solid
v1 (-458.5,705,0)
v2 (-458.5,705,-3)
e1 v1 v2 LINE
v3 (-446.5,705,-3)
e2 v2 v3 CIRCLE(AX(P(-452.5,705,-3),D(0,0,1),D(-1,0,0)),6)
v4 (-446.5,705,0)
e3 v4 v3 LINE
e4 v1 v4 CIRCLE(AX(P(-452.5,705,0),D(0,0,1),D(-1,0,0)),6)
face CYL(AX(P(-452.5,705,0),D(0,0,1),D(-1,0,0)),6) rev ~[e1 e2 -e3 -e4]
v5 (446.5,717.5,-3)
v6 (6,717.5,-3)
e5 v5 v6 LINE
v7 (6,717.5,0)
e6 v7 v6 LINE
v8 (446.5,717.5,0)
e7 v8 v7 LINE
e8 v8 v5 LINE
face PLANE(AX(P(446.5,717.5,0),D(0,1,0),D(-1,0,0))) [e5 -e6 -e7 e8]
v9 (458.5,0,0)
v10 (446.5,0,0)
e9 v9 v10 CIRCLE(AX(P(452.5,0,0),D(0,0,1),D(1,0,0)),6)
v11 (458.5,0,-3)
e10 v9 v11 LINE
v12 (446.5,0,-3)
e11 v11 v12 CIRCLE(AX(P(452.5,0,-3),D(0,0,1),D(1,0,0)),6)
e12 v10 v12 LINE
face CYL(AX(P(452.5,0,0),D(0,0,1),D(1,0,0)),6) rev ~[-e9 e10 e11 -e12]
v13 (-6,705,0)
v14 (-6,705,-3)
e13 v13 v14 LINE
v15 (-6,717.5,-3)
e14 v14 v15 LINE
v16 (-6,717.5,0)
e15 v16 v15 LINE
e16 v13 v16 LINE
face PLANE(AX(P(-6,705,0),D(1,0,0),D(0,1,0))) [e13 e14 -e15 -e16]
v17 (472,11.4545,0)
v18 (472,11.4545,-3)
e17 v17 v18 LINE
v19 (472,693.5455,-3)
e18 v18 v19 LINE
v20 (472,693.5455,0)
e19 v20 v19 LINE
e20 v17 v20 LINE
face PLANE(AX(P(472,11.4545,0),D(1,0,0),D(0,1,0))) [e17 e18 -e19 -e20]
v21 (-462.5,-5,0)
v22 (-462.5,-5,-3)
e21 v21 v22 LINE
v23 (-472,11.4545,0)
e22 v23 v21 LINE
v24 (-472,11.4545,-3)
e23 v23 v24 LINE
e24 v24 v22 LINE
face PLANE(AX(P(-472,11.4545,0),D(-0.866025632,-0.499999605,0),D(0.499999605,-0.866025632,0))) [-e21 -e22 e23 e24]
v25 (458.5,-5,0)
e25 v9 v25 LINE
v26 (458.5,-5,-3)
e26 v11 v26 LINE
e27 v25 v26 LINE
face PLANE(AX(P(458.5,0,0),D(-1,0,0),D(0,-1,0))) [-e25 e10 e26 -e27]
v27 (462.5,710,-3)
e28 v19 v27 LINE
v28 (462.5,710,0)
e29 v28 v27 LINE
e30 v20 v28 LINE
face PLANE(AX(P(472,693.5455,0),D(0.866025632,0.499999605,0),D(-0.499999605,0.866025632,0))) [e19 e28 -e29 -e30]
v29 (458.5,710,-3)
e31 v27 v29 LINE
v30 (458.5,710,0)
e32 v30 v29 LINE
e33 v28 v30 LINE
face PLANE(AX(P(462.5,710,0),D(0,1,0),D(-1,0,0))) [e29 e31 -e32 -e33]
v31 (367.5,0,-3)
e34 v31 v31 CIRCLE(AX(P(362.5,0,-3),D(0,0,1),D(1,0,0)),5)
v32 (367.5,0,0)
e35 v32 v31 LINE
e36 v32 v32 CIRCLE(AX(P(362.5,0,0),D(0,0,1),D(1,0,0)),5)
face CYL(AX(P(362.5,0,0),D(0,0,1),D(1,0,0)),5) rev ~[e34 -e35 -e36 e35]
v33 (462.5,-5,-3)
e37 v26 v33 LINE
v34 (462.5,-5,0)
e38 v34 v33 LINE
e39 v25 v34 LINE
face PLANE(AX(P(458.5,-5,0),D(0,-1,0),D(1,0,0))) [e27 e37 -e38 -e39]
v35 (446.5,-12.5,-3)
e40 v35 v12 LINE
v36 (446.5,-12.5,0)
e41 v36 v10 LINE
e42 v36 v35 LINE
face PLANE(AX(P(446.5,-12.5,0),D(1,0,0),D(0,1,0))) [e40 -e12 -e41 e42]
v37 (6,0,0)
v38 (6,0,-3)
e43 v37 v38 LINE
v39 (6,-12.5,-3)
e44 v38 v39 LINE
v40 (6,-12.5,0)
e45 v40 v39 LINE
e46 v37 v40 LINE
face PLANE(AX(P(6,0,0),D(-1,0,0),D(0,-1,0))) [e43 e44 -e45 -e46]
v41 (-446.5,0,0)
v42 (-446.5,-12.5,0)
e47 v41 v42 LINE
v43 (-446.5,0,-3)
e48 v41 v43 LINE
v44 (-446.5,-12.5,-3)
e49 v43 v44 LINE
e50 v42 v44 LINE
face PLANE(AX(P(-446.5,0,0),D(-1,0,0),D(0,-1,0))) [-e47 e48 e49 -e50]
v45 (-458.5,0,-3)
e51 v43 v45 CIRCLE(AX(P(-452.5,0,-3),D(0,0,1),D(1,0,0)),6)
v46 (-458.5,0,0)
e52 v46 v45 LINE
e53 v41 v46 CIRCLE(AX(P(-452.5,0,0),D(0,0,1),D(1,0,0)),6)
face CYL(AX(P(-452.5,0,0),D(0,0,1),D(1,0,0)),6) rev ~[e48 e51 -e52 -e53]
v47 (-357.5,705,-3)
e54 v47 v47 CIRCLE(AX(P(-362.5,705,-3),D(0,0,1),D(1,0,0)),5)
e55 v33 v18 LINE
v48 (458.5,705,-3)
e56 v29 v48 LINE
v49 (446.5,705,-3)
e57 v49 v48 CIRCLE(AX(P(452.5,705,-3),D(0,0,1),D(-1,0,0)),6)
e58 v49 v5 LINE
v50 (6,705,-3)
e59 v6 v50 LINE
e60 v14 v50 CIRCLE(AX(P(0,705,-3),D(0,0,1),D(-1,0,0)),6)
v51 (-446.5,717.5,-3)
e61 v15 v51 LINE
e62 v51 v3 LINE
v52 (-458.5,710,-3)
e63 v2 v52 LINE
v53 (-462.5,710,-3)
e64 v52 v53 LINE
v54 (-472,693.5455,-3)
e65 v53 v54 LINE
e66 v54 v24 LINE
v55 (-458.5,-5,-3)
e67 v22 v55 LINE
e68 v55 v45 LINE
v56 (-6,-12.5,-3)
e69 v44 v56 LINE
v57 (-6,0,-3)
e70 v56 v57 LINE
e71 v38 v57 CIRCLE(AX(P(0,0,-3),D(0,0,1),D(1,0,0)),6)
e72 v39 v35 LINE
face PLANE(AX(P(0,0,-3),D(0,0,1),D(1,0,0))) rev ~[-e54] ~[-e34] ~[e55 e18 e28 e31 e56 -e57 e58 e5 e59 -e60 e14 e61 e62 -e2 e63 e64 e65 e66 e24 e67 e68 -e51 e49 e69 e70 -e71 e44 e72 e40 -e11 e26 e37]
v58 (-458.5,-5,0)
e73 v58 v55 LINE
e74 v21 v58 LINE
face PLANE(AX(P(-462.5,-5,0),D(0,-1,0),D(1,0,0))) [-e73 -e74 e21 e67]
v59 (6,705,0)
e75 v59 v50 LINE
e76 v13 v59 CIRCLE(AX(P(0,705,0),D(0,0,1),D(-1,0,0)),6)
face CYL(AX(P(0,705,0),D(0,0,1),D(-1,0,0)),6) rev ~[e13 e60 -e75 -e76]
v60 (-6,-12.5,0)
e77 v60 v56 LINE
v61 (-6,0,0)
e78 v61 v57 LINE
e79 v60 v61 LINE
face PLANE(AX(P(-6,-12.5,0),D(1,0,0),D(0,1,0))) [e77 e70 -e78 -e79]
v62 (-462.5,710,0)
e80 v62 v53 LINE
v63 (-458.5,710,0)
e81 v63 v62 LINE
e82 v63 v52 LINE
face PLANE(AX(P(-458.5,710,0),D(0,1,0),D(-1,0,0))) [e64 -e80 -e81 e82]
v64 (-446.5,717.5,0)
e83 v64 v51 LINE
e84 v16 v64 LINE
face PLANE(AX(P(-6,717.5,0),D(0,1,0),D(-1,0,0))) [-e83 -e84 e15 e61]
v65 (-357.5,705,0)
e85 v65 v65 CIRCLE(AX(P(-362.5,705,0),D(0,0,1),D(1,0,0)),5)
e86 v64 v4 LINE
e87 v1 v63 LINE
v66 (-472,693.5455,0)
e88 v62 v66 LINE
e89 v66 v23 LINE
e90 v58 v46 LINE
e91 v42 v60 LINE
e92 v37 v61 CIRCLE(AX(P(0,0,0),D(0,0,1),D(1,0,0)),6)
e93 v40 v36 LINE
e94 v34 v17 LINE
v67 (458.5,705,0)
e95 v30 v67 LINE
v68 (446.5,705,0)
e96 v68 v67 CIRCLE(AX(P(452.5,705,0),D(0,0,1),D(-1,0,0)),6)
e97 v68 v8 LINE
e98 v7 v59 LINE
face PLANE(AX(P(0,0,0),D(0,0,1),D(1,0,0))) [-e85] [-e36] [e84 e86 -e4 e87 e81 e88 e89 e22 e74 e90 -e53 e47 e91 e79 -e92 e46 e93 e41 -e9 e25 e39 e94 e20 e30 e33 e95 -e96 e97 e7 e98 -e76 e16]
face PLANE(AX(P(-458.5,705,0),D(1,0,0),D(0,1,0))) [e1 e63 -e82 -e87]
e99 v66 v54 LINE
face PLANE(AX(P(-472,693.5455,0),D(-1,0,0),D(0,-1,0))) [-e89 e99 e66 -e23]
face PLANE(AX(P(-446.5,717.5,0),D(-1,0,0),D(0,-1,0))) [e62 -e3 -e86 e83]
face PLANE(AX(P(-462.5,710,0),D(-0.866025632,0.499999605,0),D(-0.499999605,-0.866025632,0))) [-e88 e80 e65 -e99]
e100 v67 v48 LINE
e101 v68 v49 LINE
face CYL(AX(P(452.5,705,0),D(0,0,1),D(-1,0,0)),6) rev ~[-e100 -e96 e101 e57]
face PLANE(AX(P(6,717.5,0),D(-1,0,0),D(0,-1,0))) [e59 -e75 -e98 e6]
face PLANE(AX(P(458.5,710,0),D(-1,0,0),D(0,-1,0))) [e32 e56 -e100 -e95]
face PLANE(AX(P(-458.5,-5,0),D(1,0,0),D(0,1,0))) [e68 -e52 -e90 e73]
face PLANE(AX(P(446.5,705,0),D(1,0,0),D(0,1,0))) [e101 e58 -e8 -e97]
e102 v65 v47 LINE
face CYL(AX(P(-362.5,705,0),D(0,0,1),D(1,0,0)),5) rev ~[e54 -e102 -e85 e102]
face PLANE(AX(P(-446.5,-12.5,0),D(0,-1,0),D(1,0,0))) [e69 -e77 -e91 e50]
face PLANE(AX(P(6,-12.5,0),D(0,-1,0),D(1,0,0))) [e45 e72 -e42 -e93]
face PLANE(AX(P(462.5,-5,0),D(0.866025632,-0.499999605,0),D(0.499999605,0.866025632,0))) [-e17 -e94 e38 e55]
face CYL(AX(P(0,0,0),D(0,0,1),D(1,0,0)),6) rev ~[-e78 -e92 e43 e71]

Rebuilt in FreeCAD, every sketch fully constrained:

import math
import FreeCAD as App
import Part
import Sketcher
Q = App.Units.Quantity

doc = App.newDocument("Part")
body = doc.addObject("PartDesign::Body", "Body")

sketch1 = doc.addObject("Sketcher::SketchObject", "Sketch")
body.addObject(sketch1)
sketch1.AttachmentSupport = (doc.XY_Plane, [""])
sketch1.MapMode = "FlatFace"
sketch1.addGeometry([
    Part.LineSegment(App.Vector(-472, 693.5455, 0), App.Vector(-472, 11.4545, 0)),
    Part.LineSegment(App.Vector(-472, 11.4545, 0), App.Vector(-462.5, -5, 0)),
    Part.LineSegment(App.Vector(-462.5, -5, 0), App.Vector(-458.5, -5, 0)),
    Part.LineSegment(App.Vector(-458.5, -5, 0), App.Vector(-458.5, 0, 0)),
    Part.ArcOfCircle(Part.Circle(App.Vector(-452.5, 0, 0), App.Vector(0, 0, 1), 6), math.radians(0), math.radians(180)),
    Part.LineSegment(App.Vector(-446.5, 0, 0), App.Vector(-446.5, -12.5, 0)),
    Part.LineSegment(App.Vector(-446.5, -12.5, 0), App.Vector(-6, -12.5, 0)),
    Part.LineSegment(App.Vector(-6, -12.5, 0), App.Vector(-6, 0, 0)),
    Part.ArcOfCircle(Part.Circle(App.Vector(0, 0, 0), App.Vector(0, 0, 1), 6), math.radians(0), math.radians(180)),
    Part.LineSegment(App.Vector(6, 0, 0), App.Vector(6, -12.5, 0)),
    Part.LineSegment(App.Vector(6, -12.5, 0), App.Vector(446.5, -12.5, 0)),
    Part.LineSegment(App.Vector(446.5, -12.5, 0), App.Vector(446.5, 0, 0)),
    Part.ArcOfCircle(Part.Circle(App.Vector(452.5, 0, 0), App.Vector(0, 0, 1), 6), math.radians(0), math.radians(180)),
    Part.LineSegment(App.Vector(458.5, 0, 0), App.Vector(458.5, -5, 0)),
    Part.LineSegment(App.Vector(458.5, -5, 0), App.Vector(462.5, -5, 0)),
    Part.LineSegment(App.Vector(462.5, -5, 0), App.Vector(472, 11.4545, 0)),
    Part.LineSegment(App.Vector(472, 11.4545, 0), App.Vector(472, 693.5455, 0)),
    Part.LineSegment(App.Vector(472, 693.5455, 0), App.Vector(462.5, 710, 0)),
    Part.LineSegment(App.Vector(462.5, 710, 0), App.Vector(458.5, 710, 0)),
    Part.LineSegment(App.Vector(458.5, 710, 0), App.Vector(458.5, 705, 0)),
    Part.ArcOfCircle(Part.Circle(App.Vector(452.5, 705, 0), App.Vector(0, 0, 1), 6), math.radians(180), math.radians(360)),
    Part.LineSegment(App.Vector(446.5, 705, 0), App.Vector(446.5, 717.5, 0)),
    Part.LineSegment(App.Vector(446.5, 717.5, 0), App.Vector(6, 717.5, 0)),
    Part.LineSegment(App.Vector(6, 717.5, 0), App.Vector(6, 705, 0)),
    Part.ArcOfCircle(Part.Circle(App.Vector(0, 705, 0), App.Vector(0, 0, 1), 6), math.radians(180), math.radians(360)),
    Part.LineSegment(App.Vector(-6, 705, 0), App.Vector(-6, 717.5, 0)),
    Part.LineSegment(App.Vector(-6, 717.5, 0), App.Vector(-446.5, 717.5, 0)),
    Part.LineSegment(App.Vector(-446.5, 717.5, 0), App.Vector(-446.5, 705, 0)),
    Part.ArcOfCircle(Part.Circle(App.Vector(-452.5, 705, 0), App.Vector(0, 0, 1), 6), math.radians(180), math.radians(360)),
    Part.LineSegment(App.Vector(-458.5, 705, 0), App.Vector(-458.5, 710, 0)),
    Part.LineSegment(App.Vector(-458.5, 710, 0), App.Vector(-462.5, 710, 0)),
    Part.LineSegment(App.Vector(-462.5, 710, 0), App.Vector(-472, 693.5455, 0)),
    Part.Circle(App.Vector(362.5, 0, 0), App.Vector(0, 0, 1), 5),
    Part.Circle(App.Vector(-362.5, 705, 0), App.Vector(0, 0, 1), 5),
], False)
sketch1.addConstraint([
    Sketcher.Constraint("Coincident", 0, 2, 1, 1),
    Sketcher.Constraint("Coincident", 1, 2, 2, 1),
    Sketcher.Constraint("Coincident", 2, 2, 3, 1),
    Sketcher.Constraint("Tangent", 3, 2, 4, 2),
    Sketcher.Constraint("Tangent", 4, 1, 5, 1),
    Sketcher.Constraint("Coincident", 5, 2, 6, 1),
    Sketcher.Constraint("Coincident", 6, 2, 7, 1),
    Sketcher.Constraint("Tangent", 7, 2, 8, 2),
    Sketcher.Constraint("Tangent", 8, 1, 9, 1),
    Sketcher.Constraint("Coincident", 9, 2, 10, 1),
    Sketcher.Constraint("Coincident", 10, 2, 11, 1),
    Sketcher.Constraint("Tangent", 11, 2, 12, 2),
    Sketcher.Constraint("Tangent", 12, 1, 13, 1),
    Sketcher.Constraint("Coincident", 13, 2, 14, 1),
    Sketcher.Constraint("Coincident", 14, 2, 15, 1),
    Sketcher.Constraint("Coincident", 15, 2, 16, 1),
    Sketcher.Constraint("Coincident", 16, 2, 17, 1),
    Sketcher.Constraint("Coincident", 17, 2, 18, 1),
    Sketcher.Constraint("Coincident", 18, 2, 19, 1),
    Sketcher.Constraint("Tangent", 19, 2, 20, 2),
    Sketcher.Constraint("Tangent", 20, 1, 21, 1),
    Sketcher.Constraint("Coincident", 21, 2, 22, 1),
    Sketcher.Constraint("Coincident", 22, 2, 23, 1),
    Sketcher.Constraint("Tangent", 23, 2, 24, 2),
    Sketcher.Constraint("Tangent", 24, 1, 25, 1),
    Sketcher.Constraint("Coincident", 25, 2, 26, 1),
    Sketcher.Constraint("Coincident", 26, 2, 27, 1),
    Sketcher.Constraint("Tangent", 27, 2, 28, 2),
    Sketcher.Constraint("Tangent", 28, 1, 29, 1),
    Sketcher.Constraint("Coincident", 29, 2, 30, 1),
    Sketcher.Constraint("Coincident", 30, 2, 31, 1),
    Sketcher.Constraint("Coincident", 31, 2, 0, 1),
    Sketcher.Constraint("Vertical", 0),
    Sketcher.Constraint("Horizontal", 2),
    Sketcher.Constraint("Vertical", 3),
    Sketcher.Constraint("Vertical", 5),
    Sketcher.Constraint("Horizontal", 6),
    Sketcher.Constraint("Vertical", 7),
    Sketcher.Constraint("Vertical", 9),
    Sketcher.Constraint("Horizontal", 10),
    Sketcher.Constraint("Vertical", 11),
    Sketcher.Constraint("Vertical", 13),
    Sketcher.Constraint("Horizontal", 14),
    Sketcher.Constraint("Vertical", 16),
    Sketcher.Constraint("Horizontal", 18),
    Sketcher.Constraint("Vertical", 19),
    Sketcher.Constraint("Vertical", 21),
    Sketcher.Constraint("Horizontal", 22),
    Sketcher.Constraint("Vertical", 23),
    Sketcher.Constraint("Vertical", 25),
    Sketcher.Constraint("Horizontal", 26),
    Sketcher.Constraint("Vertical", 27),
    Sketcher.Constraint("Vertical", 29),
    Sketcher.Constraint("Horizontal", 30),
    Sketcher.Constraint("Coincident", 8, 3, -1, 1),
    Sketcher.Constraint("Equal", 4, 8),
    Sketcher.Constraint("Equal", 8, 12),
    Sketcher.Constraint("Equal", 12, 20),
    Sketcher.Constraint("Equal", 20, 24),
    Sketcher.Constraint("Equal", 24, 28),
    Sketcher.Constraint("Equal", 32, 33),
    Sketcher.Constraint("Symmetric", 4, 3, 12, 3, -1, 1),
    Sketcher.Constraint("Symmetric", 20, 3, 28, 3, -2),
    Sketcher.Constraint("Symmetric", 1, 2, 14, 2, -2),
    Sketcher.Constraint("Symmetric", 0, 2, 15, 2, -2),
    Sketcher.Constraint("Symmetric", 22, 2, 25, 2, -2),
    Sketcher.Constraint("Symmetric", 17, 2, 30, 2, -2),
    Sketcher.Constraint("PointOnObject", 4, 3, -1),
    Sketcher.Constraint("PointOnObject", 32, 3, -1),
    Sketcher.Constraint("Parallel", 1, 17),
    Sketcher.Constraint("Parallel", 15, 31),
    Sketcher.Constraint("Horizontal", 20, 3, 24, 3),
    Sketcher.Constraint("Horizontal", 28, 3, 33, 3),
    Sketcher.Constraint("Horizontal", 6, 2, 9, 2),
    Sketcher.Constraint("Vertical", 12, 3, 20, 3),
    Sketcher.Constraint("Vertical", 14, 2, 17, 2),
    Sketcher.Constraint("Equal", 13, 19),
    Sketcher.Constraint("Equal", 11, 21),
    Sketcher.Constraint("Diameter", 32, Q("10 mm")),
    Sketcher.Constraint("Radius", 4, Q("6 mm")),
    Sketcher.Constraint("DistanceX", 2, 1, 2, 2, Q("4 mm")),
    Sketcher.Constraint("DistanceY", 3, 1, 3, 2, Q("5 mm")),
    Sketcher.Constraint("Angle", 1, Q("-60 deg")),
    Sketcher.Constraint("Distance", 1, Q("19 mm")),
    Sketcher.Constraint("DistanceX", 6, 1, 6, 2, Q("440.5 mm")),
    Sketcher.Constraint("DistanceY", 5, 2, 5, 1, Q("12.5 mm")),
    Sketcher.Constraint("DistanceY", -1, 1, 20, 3, Q("705 mm")),
    Sketcher.Constraint("DistanceX", 32, 3, 12, 3, Q("90 mm")),
    Sketcher.Constraint("DistanceX", 28, 3, 33, 3, Q("90 mm")),
])
pad1 = doc.addObject("PartDesign::Pad", "Pad")
body.addObject(pad1)
pad1.Profile = sketch1
pad1.Length = 3
pad1.Reversed = True

doc.recompute()
